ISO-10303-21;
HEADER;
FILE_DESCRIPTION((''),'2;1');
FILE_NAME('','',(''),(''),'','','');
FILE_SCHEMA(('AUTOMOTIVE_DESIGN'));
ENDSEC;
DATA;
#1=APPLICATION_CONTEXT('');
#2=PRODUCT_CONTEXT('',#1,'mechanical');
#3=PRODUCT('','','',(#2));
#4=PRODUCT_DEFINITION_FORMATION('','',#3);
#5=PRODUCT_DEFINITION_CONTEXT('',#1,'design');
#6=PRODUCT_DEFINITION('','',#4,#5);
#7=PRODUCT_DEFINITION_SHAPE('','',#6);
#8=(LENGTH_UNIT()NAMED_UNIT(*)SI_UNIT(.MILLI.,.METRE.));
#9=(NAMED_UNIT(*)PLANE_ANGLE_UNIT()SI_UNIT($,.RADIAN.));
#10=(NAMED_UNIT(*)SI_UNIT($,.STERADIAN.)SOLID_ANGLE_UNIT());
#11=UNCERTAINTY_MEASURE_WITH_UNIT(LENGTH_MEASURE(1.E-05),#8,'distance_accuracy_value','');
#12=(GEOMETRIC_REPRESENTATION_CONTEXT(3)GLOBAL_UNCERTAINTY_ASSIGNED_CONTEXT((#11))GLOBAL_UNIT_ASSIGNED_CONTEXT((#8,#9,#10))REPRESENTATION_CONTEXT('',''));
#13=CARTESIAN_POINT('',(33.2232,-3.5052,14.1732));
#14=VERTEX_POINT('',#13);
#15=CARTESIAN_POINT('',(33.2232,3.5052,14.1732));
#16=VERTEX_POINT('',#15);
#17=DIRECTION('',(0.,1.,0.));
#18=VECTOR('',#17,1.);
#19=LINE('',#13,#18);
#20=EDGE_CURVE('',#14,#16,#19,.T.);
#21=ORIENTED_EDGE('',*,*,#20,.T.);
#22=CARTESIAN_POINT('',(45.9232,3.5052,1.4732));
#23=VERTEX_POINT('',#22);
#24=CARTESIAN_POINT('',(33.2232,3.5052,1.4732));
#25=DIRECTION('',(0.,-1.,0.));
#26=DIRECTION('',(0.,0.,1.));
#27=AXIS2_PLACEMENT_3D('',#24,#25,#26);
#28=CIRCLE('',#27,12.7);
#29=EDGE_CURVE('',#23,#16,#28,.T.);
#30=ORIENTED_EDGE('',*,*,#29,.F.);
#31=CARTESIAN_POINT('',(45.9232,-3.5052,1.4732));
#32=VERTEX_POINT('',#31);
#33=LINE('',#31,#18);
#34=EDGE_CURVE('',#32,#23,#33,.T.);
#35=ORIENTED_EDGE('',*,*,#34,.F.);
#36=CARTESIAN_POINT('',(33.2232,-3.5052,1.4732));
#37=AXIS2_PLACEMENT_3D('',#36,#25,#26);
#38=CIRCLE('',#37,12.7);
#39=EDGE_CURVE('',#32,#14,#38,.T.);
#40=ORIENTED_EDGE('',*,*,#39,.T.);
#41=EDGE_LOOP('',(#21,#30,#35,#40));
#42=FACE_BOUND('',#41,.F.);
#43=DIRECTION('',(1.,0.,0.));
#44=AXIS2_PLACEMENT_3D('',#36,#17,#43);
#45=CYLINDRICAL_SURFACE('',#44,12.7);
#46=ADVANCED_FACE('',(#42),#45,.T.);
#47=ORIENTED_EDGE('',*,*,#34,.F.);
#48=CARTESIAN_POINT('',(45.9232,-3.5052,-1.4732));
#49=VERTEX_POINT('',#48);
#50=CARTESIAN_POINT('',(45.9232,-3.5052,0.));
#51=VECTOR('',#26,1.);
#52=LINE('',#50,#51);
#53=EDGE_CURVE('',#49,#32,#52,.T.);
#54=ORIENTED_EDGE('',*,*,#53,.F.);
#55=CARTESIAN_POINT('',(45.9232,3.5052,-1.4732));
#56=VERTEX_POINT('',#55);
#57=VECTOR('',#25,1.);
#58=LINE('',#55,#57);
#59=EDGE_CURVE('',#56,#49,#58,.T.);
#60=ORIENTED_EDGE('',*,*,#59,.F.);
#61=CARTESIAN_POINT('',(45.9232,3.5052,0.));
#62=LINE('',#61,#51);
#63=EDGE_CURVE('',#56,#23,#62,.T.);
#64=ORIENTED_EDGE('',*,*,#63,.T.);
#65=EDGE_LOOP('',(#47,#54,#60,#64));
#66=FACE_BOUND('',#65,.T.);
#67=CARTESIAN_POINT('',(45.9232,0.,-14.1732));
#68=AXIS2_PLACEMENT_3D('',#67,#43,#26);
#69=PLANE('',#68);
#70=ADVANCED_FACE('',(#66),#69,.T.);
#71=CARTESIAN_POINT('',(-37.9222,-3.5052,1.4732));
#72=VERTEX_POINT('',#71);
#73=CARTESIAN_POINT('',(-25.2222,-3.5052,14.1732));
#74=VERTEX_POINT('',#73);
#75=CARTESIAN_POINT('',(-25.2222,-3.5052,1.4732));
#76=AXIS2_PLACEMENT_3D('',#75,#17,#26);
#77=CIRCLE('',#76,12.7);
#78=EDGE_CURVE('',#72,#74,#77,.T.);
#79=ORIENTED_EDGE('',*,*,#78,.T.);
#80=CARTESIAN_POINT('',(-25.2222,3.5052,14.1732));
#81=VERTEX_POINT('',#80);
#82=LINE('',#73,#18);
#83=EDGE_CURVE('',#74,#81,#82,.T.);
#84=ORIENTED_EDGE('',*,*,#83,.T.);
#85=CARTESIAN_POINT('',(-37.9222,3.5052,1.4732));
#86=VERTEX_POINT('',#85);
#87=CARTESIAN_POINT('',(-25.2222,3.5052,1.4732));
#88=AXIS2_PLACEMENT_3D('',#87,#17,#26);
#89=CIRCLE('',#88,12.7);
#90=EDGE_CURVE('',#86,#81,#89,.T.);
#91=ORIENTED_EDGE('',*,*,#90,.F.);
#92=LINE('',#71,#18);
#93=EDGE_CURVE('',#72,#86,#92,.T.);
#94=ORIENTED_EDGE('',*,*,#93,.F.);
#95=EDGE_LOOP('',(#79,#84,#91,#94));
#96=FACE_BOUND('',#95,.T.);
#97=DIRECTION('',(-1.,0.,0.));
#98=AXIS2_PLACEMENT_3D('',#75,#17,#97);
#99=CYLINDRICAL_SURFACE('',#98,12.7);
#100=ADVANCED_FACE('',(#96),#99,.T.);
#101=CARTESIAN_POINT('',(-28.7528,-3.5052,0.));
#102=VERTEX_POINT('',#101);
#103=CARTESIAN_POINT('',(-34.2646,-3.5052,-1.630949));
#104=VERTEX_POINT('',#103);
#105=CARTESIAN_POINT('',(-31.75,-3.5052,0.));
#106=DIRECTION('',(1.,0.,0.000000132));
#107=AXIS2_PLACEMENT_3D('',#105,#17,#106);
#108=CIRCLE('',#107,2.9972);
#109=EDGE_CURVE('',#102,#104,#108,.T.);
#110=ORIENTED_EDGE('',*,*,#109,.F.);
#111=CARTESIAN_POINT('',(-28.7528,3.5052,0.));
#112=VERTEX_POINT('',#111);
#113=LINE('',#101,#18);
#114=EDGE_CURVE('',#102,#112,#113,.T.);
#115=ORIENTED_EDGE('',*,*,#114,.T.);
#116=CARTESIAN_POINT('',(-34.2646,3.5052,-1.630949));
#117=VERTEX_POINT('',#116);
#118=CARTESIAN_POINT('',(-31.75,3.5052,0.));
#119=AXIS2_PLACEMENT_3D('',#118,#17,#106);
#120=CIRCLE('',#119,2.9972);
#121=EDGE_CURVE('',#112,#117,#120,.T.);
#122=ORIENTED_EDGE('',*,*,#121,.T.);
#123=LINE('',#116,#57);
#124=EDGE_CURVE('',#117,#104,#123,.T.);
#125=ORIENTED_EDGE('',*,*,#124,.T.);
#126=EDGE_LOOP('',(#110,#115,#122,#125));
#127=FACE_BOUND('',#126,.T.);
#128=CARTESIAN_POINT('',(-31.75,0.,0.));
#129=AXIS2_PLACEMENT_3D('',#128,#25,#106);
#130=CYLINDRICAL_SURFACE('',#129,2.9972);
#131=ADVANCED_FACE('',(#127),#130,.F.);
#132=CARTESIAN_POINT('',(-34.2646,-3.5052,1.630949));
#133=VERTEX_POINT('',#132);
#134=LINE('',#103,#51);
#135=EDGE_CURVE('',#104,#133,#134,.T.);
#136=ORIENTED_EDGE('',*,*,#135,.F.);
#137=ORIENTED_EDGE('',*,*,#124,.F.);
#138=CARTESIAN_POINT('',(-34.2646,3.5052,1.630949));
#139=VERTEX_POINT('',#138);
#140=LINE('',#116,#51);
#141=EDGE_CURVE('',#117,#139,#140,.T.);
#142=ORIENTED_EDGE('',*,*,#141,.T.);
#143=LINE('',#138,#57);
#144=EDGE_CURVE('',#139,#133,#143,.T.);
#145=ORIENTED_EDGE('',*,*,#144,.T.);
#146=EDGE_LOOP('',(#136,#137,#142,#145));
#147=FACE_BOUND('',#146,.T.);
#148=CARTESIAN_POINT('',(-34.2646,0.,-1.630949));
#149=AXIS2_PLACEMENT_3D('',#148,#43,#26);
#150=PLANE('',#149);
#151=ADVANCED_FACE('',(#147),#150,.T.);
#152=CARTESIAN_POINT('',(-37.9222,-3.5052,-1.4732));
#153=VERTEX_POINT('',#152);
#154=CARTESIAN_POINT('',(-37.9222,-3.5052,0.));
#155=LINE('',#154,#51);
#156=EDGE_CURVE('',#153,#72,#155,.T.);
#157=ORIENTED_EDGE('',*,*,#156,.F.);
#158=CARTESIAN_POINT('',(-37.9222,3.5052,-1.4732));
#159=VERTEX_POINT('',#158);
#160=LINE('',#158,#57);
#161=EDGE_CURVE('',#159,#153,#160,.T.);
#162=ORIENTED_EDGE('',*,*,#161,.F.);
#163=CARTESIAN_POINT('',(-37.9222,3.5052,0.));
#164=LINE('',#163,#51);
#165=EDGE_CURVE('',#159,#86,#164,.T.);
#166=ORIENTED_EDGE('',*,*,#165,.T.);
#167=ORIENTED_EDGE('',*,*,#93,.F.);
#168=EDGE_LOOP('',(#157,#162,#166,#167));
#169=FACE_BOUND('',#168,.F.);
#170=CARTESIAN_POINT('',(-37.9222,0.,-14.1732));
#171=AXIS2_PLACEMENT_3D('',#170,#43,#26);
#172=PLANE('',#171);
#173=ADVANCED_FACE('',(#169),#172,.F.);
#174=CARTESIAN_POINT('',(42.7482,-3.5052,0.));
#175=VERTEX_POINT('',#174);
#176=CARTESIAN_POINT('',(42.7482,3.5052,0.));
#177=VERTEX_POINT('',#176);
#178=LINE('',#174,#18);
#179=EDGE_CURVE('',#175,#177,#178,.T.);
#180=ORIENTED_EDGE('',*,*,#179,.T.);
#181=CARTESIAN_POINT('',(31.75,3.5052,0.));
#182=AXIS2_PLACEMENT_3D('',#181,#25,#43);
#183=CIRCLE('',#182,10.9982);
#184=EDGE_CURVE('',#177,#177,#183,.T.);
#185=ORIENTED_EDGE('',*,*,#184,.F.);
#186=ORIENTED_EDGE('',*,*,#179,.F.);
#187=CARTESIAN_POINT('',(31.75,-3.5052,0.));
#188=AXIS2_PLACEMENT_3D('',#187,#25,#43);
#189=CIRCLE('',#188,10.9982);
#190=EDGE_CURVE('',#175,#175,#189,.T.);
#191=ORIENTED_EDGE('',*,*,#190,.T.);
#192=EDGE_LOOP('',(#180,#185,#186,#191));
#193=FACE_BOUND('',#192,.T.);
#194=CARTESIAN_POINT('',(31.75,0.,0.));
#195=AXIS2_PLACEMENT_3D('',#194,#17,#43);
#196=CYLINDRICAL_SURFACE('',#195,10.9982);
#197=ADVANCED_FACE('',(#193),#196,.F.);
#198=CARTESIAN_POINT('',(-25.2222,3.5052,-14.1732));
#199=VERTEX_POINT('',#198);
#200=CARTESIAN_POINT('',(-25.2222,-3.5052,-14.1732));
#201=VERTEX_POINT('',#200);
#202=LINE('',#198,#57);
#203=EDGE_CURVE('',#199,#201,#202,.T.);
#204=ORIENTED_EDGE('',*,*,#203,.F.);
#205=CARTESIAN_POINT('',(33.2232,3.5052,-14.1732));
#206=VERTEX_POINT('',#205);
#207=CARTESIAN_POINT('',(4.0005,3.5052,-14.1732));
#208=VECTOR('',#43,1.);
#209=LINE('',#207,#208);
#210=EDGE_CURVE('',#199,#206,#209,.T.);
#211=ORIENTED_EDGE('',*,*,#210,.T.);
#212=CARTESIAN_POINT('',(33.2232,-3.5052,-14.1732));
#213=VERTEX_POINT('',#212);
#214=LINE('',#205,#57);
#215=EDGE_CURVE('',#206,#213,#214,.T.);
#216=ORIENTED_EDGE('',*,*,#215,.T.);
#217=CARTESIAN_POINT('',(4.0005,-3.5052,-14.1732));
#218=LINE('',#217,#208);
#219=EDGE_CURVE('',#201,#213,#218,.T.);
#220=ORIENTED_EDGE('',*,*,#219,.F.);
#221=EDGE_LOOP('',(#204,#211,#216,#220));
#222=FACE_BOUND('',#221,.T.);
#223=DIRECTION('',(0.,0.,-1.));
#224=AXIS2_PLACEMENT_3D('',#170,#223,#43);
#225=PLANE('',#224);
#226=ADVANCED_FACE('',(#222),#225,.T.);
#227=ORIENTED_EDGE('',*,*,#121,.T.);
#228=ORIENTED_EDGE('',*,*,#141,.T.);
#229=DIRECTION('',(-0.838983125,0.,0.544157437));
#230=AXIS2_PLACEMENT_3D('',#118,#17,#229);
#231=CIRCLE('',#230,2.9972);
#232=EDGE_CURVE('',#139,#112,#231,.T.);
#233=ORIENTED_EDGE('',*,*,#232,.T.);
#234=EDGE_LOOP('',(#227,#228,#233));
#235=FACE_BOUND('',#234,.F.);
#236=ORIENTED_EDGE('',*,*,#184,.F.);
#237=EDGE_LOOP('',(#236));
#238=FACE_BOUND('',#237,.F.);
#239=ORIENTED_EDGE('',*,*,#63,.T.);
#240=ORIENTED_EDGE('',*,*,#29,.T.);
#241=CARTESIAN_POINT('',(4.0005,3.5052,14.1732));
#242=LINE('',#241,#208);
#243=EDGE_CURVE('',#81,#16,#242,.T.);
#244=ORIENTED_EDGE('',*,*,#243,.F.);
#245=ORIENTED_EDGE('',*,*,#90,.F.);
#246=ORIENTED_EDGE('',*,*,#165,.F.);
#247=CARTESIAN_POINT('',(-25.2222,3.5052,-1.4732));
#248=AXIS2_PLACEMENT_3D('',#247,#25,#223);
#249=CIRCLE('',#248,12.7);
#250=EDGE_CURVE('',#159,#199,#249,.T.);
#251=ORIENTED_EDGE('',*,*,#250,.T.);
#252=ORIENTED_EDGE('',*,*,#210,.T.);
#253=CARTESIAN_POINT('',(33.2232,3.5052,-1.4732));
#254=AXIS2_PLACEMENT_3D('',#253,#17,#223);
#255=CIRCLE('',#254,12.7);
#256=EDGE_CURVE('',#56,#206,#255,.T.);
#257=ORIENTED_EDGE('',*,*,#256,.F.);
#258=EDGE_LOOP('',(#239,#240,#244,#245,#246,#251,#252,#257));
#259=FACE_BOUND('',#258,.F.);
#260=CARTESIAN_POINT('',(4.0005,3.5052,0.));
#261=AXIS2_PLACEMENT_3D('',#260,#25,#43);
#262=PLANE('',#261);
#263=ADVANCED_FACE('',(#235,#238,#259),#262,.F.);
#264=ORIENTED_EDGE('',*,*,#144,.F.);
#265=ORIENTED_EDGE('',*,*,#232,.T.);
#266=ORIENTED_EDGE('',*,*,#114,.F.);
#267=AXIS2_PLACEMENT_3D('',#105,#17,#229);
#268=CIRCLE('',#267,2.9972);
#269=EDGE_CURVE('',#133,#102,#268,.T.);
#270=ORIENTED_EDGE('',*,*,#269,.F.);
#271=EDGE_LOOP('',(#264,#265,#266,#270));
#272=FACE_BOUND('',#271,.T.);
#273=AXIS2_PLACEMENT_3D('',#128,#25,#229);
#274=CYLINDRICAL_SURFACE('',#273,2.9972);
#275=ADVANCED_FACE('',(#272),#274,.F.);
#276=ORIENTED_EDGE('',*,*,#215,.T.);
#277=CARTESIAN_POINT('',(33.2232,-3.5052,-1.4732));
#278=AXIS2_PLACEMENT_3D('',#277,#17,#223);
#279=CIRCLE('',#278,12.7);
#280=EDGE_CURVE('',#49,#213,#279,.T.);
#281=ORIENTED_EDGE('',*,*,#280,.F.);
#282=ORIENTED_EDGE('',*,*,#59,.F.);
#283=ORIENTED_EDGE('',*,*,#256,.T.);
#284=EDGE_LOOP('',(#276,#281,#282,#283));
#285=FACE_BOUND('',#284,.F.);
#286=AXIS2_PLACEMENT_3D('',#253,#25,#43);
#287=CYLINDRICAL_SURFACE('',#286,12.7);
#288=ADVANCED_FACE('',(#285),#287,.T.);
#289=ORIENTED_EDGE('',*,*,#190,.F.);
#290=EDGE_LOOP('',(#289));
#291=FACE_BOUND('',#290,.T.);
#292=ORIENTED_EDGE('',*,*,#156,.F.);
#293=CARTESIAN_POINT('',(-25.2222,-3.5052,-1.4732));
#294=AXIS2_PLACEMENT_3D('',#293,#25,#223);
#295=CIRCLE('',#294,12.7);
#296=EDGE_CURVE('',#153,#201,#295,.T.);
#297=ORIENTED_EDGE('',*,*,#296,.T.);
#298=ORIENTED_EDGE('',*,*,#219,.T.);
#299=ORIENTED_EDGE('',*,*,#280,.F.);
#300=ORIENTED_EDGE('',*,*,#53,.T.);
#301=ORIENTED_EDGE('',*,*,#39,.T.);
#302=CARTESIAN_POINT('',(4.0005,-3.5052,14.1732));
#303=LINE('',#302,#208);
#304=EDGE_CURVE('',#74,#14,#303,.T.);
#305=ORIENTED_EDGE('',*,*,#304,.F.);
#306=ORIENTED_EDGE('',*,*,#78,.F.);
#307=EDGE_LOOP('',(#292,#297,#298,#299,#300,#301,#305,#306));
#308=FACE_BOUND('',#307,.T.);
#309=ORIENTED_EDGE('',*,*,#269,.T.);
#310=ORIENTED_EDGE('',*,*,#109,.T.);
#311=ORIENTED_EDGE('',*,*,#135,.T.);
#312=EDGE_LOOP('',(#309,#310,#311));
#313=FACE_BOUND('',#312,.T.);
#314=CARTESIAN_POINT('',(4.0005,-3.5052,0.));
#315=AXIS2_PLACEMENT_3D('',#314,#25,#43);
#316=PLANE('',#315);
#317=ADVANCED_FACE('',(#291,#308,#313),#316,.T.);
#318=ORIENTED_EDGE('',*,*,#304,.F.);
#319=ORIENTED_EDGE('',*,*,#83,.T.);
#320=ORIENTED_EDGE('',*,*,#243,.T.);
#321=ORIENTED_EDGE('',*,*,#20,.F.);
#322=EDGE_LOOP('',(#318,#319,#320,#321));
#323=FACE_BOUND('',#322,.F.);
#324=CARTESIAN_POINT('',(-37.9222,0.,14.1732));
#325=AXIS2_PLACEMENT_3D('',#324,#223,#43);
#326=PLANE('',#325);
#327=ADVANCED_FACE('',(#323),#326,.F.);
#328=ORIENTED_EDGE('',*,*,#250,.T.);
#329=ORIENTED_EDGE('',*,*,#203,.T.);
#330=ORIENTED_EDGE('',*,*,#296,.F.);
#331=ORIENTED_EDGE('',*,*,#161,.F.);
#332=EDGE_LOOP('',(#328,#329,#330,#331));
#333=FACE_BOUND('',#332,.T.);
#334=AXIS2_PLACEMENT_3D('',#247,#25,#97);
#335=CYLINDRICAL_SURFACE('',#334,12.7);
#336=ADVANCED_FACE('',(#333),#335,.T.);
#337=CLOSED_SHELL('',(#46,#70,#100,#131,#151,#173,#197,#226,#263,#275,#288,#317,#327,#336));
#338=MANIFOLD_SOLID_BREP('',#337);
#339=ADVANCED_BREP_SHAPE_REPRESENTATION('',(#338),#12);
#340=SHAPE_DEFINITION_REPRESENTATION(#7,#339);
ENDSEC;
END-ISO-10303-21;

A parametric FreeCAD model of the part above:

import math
import FreeCAD as App
import Part
import Sketcher
from FreeCAD import Vector
Q = App.Units.Quantity


def edges_at(feature, points):
    """Names of the edges that pass closest to the given points."""
    edges = feature.Shape.Edges
    near = lambda p: min(range(len(edges)), key=lambda i: edges[i].distToShape(Part.Vertex(*p))[0])
    return sorted({f"Edge{near(p) + 1}" for p in points})

doc = App.newDocument("Part")
body = doc.addObject("PartDesign::Body", "Body")

sketch1 = body.newObject("Sketcher::SketchObject", "Sketch")
sketch1.AttachmentSupport = (doc.getObject("XZ_Plane"), [""])
sketch1.MapMode = "FlatFace"
sketch1.addGeometry([
    Part.LineSegment(Vector(-37.9, 14.2, 0), Vector(-37.9, -14.2, 0)),
    Part.LineSegment(Vector(-37.9, -14.2, 0), Vector(45.9, -14.2, 0)),
    Part.LineSegment(Vector(45.9, -14.2, 0), Vector(45.9, 14.2, 0)),
    Part.LineSegment(Vector(45.9, 14.2, 0), Vector(-37.9, 14.2, 0)),
    Part.ArcOfCircle(Part.Circle(Vector(-31.7, 0, 0), Vector(0, 0, 1), 3), math.radians(-147), math.radians(0)),
    Part.LineSegment(Vector(-34.3, -1.6, 0), Vector(-34.3, 1.6, 0)),
    Part.ArcOfCircle(Part.Circle(Vector(-31.7, 0, 0), Vector(0, 0, 1), 3), math.radians(0), math.radians(147)),
    Part.Circle(Vector(31.8, 0, 0), Vector(0, 0, 1), 11),
], False)
sketch1.addConstraint([
    Sketcher.Constraint("Coincident", 0, 2, 1, 1),
    Sketcher.Constraint("Coincident", 1, 2, 2, 1),
    Sketcher.Constraint("Coincident", 2, 2, 3, 1),
    Sketcher.Constraint("Coincident", 3, 2, 0, 1),
    Sketcher.Constraint("Coincident", 4, 1, 5, 1),
    Sketcher.Constraint("Coincident", 5, 2, 6, 2),
    Sketcher.Constraint("Tangent", 6, 1, 4, 2),
    Sketcher.Constraint("Vertical", 0),
    Sketcher.Constraint("Horizontal", 1),
    Sketcher.Constraint("Vertical", 2),
    Sketcher.Constraint("Horizontal", 3),
    Sketcher.Constraint("Vertical", 5),
    Sketcher.Constraint("Equal", 4, 6),
    Sketcher.Constraint("Symmetric", 4, 3, 7, 3, -1, 1),
    Sketcher.Constraint("PointOnObject", 4, 3, -1),
    Sketcher.Constraint("PointOnObject", 6, 1, -1),
    Sketcher.Constraint("Diameter", 7, Q("0.866 in")),
    Sketcher.Constraint("Radius", 4, Q("0.118 in")),
    Sketcher.Constraint("DistanceX", 4, 3, 7, 3, Q("2.5 in")),
    Sketcher.Constraint("DistanceX", 1, 1, 1, 2, Q("3.301 in")),
    Sketcher.Constraint("DistanceY", 0, 2, 0, 1, Q("1.116 in")),
    Sketcher.Constraint("DistanceX", 0, 2, -1, 1, Q("1.493 in")),
    Sketcher.Constraint("DistanceY", 0, 2, -1, 1, Q("0.558 in")),
    Sketcher.Constraint("DistanceX", 4, 1, -1, 1, Q("1.349 in")),
])
pad1 = body.newObject("PartDesign::Pad", "Pad")
pad1.Profile = sketch1
pad1.Length = Q("0.276 in")
pad1.Midplane = True
doc.recompute()

fillet = body.newObject("PartDesign::Fillet", "Fillet")
fillet.Base = (pad1, edges_at(pad1, [
    (-37.922, 0, 14.173),
    (-37.922, 0, -14.173),
    (45.923, 0, 14.173),
    (45.923, 0, -14.173),
]))
fillet.Radius = Q("0.5 in")

doc.recompute()
